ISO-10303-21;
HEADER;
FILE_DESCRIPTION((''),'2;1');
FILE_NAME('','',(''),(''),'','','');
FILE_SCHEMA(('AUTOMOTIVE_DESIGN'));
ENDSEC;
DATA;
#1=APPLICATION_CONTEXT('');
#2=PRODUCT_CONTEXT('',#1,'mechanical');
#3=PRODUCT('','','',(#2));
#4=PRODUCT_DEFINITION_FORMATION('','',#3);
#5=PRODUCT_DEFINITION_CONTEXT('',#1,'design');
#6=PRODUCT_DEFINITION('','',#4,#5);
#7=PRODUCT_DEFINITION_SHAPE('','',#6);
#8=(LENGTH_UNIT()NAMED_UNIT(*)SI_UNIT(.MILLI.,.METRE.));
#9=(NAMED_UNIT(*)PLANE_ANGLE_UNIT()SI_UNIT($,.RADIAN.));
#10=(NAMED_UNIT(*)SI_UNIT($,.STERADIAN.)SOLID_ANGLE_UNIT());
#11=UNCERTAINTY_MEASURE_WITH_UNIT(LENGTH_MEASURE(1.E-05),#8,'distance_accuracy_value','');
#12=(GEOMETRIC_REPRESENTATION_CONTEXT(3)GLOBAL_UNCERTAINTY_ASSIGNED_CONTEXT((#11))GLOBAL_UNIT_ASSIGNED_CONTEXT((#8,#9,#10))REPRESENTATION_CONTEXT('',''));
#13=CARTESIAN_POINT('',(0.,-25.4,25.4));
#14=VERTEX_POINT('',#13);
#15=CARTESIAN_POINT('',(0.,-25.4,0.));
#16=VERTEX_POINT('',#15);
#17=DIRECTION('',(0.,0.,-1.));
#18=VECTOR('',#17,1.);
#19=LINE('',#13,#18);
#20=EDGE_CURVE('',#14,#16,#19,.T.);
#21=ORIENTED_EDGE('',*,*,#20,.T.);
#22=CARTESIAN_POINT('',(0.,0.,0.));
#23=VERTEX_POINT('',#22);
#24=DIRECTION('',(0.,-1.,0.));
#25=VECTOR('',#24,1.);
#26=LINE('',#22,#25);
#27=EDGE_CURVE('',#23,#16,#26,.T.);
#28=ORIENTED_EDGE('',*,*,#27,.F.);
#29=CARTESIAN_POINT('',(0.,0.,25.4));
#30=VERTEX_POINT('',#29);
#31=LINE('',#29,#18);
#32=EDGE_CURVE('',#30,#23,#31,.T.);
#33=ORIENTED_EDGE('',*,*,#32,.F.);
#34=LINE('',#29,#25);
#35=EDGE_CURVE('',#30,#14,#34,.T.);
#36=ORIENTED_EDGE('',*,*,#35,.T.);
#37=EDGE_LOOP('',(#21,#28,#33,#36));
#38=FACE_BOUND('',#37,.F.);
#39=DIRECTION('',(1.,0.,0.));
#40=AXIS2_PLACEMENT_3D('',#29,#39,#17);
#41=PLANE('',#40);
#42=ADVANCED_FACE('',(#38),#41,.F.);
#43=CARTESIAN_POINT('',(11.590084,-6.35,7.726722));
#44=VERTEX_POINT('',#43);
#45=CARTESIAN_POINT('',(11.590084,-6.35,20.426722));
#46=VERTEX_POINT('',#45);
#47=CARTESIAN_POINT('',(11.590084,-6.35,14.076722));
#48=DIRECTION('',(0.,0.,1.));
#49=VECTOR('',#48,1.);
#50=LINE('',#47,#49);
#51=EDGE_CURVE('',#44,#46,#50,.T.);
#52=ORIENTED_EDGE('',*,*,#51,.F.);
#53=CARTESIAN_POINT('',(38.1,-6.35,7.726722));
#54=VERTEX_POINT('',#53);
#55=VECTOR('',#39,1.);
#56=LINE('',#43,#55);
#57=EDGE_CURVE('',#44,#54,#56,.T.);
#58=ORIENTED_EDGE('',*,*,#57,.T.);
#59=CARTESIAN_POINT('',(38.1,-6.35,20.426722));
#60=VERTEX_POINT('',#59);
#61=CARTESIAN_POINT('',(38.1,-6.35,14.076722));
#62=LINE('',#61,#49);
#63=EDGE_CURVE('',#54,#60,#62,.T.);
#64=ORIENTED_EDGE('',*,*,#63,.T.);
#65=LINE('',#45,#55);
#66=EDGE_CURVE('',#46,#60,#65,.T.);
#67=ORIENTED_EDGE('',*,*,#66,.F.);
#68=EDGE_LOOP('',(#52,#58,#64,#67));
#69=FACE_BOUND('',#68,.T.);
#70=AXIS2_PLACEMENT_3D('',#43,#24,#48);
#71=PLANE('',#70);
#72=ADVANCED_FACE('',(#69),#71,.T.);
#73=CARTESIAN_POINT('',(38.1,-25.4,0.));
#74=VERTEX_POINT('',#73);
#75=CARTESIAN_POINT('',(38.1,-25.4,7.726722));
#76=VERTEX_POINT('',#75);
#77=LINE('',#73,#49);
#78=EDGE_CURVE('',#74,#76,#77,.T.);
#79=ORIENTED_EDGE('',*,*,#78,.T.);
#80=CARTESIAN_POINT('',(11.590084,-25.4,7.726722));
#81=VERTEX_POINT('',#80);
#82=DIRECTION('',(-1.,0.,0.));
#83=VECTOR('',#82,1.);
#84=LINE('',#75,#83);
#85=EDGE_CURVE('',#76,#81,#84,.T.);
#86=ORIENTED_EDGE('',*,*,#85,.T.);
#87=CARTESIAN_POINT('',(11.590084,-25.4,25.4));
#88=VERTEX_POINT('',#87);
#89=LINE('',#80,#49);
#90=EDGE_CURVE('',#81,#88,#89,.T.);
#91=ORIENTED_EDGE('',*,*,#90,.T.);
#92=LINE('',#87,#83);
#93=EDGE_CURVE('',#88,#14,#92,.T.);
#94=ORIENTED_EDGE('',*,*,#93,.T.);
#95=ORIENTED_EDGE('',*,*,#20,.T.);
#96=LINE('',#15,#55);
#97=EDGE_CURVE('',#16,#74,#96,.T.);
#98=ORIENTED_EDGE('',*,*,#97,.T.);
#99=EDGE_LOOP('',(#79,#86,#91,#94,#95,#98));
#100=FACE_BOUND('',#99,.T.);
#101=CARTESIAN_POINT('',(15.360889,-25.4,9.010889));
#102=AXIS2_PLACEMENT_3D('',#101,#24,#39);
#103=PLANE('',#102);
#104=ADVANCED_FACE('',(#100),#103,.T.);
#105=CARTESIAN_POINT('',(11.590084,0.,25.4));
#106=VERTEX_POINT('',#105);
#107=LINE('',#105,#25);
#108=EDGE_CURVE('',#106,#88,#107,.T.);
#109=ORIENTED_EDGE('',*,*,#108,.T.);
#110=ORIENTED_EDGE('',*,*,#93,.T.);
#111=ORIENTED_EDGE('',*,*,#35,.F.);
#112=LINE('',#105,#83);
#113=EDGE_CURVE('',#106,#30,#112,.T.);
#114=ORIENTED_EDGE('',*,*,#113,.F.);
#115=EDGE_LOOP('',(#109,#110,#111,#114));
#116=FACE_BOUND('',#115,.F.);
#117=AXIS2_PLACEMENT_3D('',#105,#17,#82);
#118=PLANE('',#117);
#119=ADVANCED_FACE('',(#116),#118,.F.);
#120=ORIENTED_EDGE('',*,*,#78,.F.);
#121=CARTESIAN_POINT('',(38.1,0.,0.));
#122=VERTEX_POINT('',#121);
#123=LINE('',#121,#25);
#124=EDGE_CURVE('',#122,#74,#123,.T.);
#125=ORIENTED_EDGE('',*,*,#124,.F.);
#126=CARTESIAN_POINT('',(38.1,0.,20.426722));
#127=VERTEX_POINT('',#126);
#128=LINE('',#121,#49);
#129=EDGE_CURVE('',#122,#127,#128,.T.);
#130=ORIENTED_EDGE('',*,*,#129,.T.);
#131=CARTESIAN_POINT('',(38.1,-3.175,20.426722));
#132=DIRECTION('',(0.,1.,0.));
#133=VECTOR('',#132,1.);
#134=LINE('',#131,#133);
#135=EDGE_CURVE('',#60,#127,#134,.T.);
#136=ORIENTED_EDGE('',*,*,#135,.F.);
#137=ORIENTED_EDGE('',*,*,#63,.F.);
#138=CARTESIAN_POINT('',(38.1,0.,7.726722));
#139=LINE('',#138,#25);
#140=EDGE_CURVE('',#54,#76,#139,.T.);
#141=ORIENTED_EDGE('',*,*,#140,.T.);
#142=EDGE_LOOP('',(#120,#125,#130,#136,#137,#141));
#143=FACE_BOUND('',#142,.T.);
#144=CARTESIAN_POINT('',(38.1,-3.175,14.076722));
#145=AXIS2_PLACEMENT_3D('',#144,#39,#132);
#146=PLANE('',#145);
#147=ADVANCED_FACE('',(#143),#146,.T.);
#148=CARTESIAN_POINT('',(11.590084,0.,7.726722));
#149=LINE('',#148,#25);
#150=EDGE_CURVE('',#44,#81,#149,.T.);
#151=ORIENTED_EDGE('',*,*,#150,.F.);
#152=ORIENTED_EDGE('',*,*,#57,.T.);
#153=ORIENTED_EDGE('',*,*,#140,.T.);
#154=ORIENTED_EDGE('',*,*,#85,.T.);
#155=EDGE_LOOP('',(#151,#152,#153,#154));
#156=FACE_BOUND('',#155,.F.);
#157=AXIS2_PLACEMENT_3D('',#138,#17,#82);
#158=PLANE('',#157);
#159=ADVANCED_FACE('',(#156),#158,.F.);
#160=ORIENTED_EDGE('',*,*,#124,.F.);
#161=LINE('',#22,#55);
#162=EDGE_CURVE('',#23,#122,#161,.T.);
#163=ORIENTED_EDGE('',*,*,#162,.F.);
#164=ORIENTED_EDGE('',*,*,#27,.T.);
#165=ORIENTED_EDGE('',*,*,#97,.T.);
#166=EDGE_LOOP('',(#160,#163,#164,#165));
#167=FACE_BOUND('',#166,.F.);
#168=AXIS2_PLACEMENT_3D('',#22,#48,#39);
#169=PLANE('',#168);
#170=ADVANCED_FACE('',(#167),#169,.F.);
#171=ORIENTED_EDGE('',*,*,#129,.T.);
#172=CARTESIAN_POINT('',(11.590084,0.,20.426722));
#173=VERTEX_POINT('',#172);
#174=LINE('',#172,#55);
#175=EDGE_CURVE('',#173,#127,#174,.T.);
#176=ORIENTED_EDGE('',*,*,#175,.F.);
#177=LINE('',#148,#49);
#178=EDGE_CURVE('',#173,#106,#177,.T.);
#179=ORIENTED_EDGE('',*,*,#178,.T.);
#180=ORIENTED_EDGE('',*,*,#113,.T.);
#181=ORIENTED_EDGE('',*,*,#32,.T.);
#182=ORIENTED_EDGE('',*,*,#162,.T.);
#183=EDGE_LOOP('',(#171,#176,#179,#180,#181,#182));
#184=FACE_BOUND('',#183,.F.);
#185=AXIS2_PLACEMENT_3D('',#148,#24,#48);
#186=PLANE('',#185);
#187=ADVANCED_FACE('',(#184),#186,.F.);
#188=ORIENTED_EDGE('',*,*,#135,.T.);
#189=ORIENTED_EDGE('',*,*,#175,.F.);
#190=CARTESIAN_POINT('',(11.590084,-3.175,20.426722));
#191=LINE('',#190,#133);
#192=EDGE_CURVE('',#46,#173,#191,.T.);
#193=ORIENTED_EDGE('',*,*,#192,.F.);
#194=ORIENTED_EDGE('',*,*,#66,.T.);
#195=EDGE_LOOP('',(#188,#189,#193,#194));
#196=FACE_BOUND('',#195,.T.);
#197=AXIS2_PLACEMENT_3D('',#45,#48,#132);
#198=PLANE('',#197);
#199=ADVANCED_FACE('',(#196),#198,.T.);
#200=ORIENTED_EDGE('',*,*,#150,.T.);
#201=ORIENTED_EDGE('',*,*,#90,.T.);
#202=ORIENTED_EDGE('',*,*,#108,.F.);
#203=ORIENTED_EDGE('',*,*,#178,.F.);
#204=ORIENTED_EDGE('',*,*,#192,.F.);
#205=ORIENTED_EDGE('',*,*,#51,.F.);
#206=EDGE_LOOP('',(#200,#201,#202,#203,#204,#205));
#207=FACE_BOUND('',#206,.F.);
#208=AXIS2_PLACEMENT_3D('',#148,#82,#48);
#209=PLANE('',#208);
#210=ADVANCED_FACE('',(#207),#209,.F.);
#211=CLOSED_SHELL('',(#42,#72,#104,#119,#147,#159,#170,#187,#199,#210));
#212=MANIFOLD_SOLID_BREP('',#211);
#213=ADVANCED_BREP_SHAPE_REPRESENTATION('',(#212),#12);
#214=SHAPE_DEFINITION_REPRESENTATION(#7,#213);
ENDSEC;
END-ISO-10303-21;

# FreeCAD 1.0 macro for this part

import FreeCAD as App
import Part
import Sketcher

V = App.Vector
Q = App.Units.Quantity


def add_polygon(sketch, points):
    """Adds a closed chain of lines whose ends are joined by coincident constraints."""
    first, n = sketch.GeometryCount, len(points)
    for a, b in zip(points, points[1:] + points[:1]):
        sketch.addGeometry(Part.LineSegment(App.Vector(*a, 0), App.Vector(*b, 0)), False)
    for i in range(n):
        sketch.addConstraint(Sketcher.Constraint("Coincident", first + i, 2, first + (i + 1) % n, 1))

doc = App.newDocument("Part")
body = doc.addObject("PartDesign::Body", "Body")

# Sketch on XZ plane
sketch1 = doc.addObject("Sketcher::SketchObject", "Sketch")
body.addObject(sketch1)
sketch1.AttachmentSupport = (doc.XZ_Plane, [""])
sketch1.MapMode = "FlatFace"
add_polygon(sketch1, [(0, 25.4), (0, 0), (38.1, 0), (38.1, 7.726722), (11.590084, 7.726722), (11.590084, 25.4)])  # lines 0-5
sketch1.addConstraint(Sketcher.Constraint("Vertical", 0))
sketch1.addConstraint(Sketcher.Constraint("Horizontal", 1))
sketch1.addConstraint(Sketcher.Constraint("Vertical", 2))
sketch1.addConstraint(Sketcher.Constraint("Horizontal", 3))
sketch1.addConstraint(Sketcher.Constraint("Vertical", 4))
sketch1.addConstraint(Sketcher.Constraint("Horizontal", 5))
sketch1.addConstraint(Sketcher.Constraint("Coincident", 0, 2, -1, 1))
sketch1.addConstraint(Sketcher.Constraint("DistanceY", 0, 2, 0, 1, Q("1 in")))
sketch1.addConstraint(Sketcher.Constraint("DistanceX", 1, 1, 1, 2, Q("1.5 in")))
sketch1.addConstraint(Sketcher.Constraint("DistanceY", 2, 1, 2, 2, 7.726722))
sketch1.addConstraint(Sketcher.Constraint("DistanceX", 3, 2, 3, 1, 26.509916))
pad1 = doc.addObject("PartDesign::Pad", "Pad")
body.addObject(pad1)
pad1.Profile = sketch1
pad1.Length = Q("1 in")

# Sketch on YZ plane
sketch2 = doc.addObject("Sketcher::SketchObject", "Sketch001")
body.addObject(sketch2)
sketch2.AttachmentSupport = (doc.YZ_Plane, [""])
sketch2.MapMode = "FlatFace"
sketch2.AttachmentOffset = App.Placement(V(0, 0, 11.590084), App.Rotation())
add_polygon(sketch2, [(-6.35, 20.426722), (-6.35, 7.726722), (0, 7.726722), (0, 20.426722)])  # lines 0-3
sketch2.addConstraint(Sketcher.Constraint("Vertical", 0))
sketch2.addConstraint(Sketcher.Constraint("Horizontal", 1))
sketch2.addConstraint(Sketcher.Constraint("Vertical", 2))
sketch2.addConstraint(Sketcher.Constraint("Horizontal", 3))
sketch2.addConstraint(Sketcher.Constraint("PointOnObject", 1, 2, -2))
sketch2.addConstraint(Sketcher.Constraint("DistanceY", 0, 2, 0, 1, Q("0.5 in")))
sketch2.addConstraint(Sketcher.Constraint("DistanceX", 1, 1, 1, 2, Q("0.25 in")))
sketch2.addConstraint(Sketcher.Constraint("DistanceY", -1, 1, 0, 2, 7.726722))
pad2 = doc.addObject("PartDesign::Pad", "Pad001")
body.addObject(pad2)
pad2.Profile = sketch2
pad2.Length = 26.509916

doc.recompute()
